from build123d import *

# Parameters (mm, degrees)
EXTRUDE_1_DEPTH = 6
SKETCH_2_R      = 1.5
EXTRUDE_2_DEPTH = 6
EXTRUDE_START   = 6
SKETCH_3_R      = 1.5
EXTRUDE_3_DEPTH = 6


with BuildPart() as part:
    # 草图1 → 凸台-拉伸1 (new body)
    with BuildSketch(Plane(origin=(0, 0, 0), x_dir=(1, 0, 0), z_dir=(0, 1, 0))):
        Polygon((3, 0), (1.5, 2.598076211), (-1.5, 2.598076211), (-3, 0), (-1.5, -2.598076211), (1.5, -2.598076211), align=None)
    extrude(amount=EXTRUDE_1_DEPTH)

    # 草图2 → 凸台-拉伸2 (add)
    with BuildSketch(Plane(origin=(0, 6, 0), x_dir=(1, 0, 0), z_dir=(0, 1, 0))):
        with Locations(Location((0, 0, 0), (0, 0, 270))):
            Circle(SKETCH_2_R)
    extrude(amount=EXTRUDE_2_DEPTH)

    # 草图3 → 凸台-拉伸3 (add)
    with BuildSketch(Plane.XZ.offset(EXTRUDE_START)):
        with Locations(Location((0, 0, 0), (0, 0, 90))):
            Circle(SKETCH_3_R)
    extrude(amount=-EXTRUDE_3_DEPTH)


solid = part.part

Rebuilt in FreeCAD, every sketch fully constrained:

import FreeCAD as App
import Part
import Sketcher

V = App.Vector
Q = App.Units.Quantity


def add_polygon(sketch, points):
    """Adds a closed chain of lines whose ends are joined by coincident constraints."""
    first, n = sketch.GeometryCount, len(points)
    for a, b in zip(points, points[1:] + points[:1]):
        sketch.addGeometry(Part.LineSegment(App.Vector(*a, 0), App.Vector(*b, 0)), False)
    for i in range(n):
        sketch.addConstraint(Sketcher.Constraint("Coincident", first + i, 2, first + (i + 1) % n, 1))

doc = App.newDocument("Part")
params = doc.addObject("Spreadsheet::Sheet", "Params")
for row, (alias, value) in enumerate([
    ("sketch1_width", "3 mm"),
    ("sketch1_length", "3 mm"),
    ("pad1_length", "6 mm"),
    ("sketch2_diameter", "3 mm"),
    ("pad2_length", "6 mm"),
    ("sketch3_diameter", "3 mm"),
    ("pad3_length", "6 mm"),
], start=1):
    params.set(f"A{row}", alias)
    params.set(f"B{row}", "=" + value)
    params.setAlias(f"B{row}", alias)

body = doc.addObject("PartDesign::Body", "Body")

# Sketch on XZ plane
sketch1 = body.newObject("Sketcher::SketchObject", "Sketch")
sketch1.AttachmentSupport = (doc.getObject("XZ_Plane"), [""])
sketch1.MapMode = "FlatFace"
add_polygon(sketch1, [(3, 0), (1.5, -2.6), (-1.5, -2.6), (-3, 0), (-1.5, 2.6), (1.5, 2.6)])  # lines 0-5
sketch1.addConstraint(Sketcher.Constraint("Horizontal", 1))
sketch1.addConstraint(Sketcher.Constraint("Horizontal", 4))
sketch1.addConstraint(Sketcher.Constraint("Symmetric", 0, 2, 3, 2, -1, 1))
sketch1.addConstraint(Sketcher.Constraint("Symmetric", 2, 2, 5, 2, -1, 1))
sketch1.addConstraint(Sketcher.Constraint("PointOnObject", 2, 2, -1))
sketch1.addConstraint(Sketcher.Constraint("Parallel", 2, 5))
sketch1.addConstraint(Sketcher.Constraint("Vertical", 1, 2, 3, 2))
sketch1.addConstraint(Sketcher.Constraint("DistanceX", 1, 2, 1, 1, 3.0))
sketch1.addConstraint(Sketcher.Constraint("Angle", 0, Q("-120 deg")))
sketch1.addConstraint(Sketcher.Constraint("Distance", 0, 3.0))
sketch1.setExpression("Constraints[13]", "Params.sketch1_width")
sketch1.setExpression("Constraints[15]", "Params.sketch1_length")
pad1 = body.newObject("PartDesign::Pad", "Pad")
pad1.Profile = sketch1
pad1.setExpression("Length", "Params.pad1_length")
pad1.Reversed = True

# Sketch on XZ plane
sketch2 = body.newObject("Sketcher::SketchObject", "Sketch001")
sketch2.AttachmentSupport = (doc.getObject("XZ_Plane"), [""])
sketch2.MapMode = "FlatFace"
sketch2.AttachmentOffset = App.Placement(V(0, 0, -6), App.Rotation())
sketch2.addGeometry(Part.Circle(V(0, 0, 0), V(0, 0, 1), 1.5), False)
sketch2.addConstraint(Sketcher.Constraint("Coincident", 0, 3, -1, 1))
sketch2.addConstraint(Sketcher.Constraint("Diameter", 0, 3.0))
sketch2.setExpression("Constraints[1]", "Params.sketch2_diameter")
pad2 = body.newObject("PartDesign::Pad", "Pad001")
pad2.Profile = sketch2
pad2.setExpression("Length", "Params.pad2_length")
pad2.Reversed = True

# Sketch on XZ plane
sketch3 = body.newObject("Sketcher::SketchObject", "Sketch002")
sketch3.AttachmentSupport = (doc.getObject("XZ_Plane"), [""])
sketch3.MapMode = "FlatFace"
sketch3.AttachmentOffset = App.Placement(V(0, 0, 6), App.Rotation())
sketch3.addGeometry(Part.Circle(V(0, 0, 0), V(0, 0, 1), 1.5), False)
sketch3.addConstraint(Sketcher.Constraint("Coincident", 0, 3, -1, 1))
sketch3.addConstraint(Sketcher.Constraint("Diameter", 0, 3.0))
sketch3.setExpression("Constraints[1]", "Params.sketch3_diameter")
pad3 = body.newObject("PartDesign::Pad", "Pad002")
pad3.Profile = sketch3
pad3.setExpression("Length", "Params.pad3_length")
pad3.Reversed = True

doc.recompute()
